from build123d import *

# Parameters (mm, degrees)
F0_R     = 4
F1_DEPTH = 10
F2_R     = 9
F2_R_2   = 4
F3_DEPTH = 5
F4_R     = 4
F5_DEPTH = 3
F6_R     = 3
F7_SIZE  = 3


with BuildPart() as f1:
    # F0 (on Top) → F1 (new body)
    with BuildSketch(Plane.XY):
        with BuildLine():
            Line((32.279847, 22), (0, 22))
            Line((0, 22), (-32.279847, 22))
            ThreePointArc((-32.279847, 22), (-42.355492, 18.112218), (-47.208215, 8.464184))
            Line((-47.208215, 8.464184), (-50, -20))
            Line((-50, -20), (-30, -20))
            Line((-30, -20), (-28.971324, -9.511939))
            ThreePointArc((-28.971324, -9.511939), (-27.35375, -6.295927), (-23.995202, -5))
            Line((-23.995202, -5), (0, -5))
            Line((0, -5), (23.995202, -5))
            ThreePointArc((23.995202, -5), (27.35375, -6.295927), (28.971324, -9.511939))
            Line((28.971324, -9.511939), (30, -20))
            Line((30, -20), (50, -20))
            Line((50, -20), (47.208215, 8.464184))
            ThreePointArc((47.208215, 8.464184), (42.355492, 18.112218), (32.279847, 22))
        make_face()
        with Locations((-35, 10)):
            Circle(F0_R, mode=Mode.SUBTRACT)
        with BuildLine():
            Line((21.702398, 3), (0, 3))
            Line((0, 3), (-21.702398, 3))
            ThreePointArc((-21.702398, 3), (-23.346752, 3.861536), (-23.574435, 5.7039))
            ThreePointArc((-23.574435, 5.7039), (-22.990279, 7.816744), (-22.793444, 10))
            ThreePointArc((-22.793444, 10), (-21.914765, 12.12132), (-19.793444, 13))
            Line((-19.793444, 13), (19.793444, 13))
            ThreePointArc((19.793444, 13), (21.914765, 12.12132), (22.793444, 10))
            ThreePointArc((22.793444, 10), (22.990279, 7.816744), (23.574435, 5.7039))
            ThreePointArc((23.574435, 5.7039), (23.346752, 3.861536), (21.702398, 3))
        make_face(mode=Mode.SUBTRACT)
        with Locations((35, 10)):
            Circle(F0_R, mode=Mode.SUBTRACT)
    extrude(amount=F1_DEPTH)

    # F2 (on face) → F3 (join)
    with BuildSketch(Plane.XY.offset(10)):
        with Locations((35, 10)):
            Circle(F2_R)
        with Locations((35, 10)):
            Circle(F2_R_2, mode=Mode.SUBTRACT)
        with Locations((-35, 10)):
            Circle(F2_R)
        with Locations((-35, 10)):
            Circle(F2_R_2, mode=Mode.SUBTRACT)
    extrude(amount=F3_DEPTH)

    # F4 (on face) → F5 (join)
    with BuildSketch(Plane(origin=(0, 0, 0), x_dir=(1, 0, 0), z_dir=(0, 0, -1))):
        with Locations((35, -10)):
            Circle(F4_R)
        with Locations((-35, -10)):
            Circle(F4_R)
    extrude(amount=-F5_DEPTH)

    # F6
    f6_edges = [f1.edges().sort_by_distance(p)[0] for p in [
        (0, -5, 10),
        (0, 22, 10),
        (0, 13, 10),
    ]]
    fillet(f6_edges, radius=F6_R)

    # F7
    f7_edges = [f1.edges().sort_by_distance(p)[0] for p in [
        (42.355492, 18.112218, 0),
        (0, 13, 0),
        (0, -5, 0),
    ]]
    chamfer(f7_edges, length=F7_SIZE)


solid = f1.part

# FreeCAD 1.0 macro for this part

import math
import FreeCAD as App
import Part
import Sketcher
from FreeCAD import Vector


def edges_at(feature, points):
    """Names of the edges that pass closest to the given points."""
    edges = feature.Shape.Edges
    near = lambda p: min(range(len(edges)), key=lambda i: edges[i].distToShape(Part.Vertex(*p))[0])
    return sorted({f"Edge{near(p) + 1}" for p in points})

doc = App.newDocument("Part")
body = doc.addObject("PartDesign::Body", "Body")

# Sketch on XY plane
sketch1 = body.newObject("Sketcher::SketchObject", "Sketch")
sketch1.AttachmentSupport = (doc.getObject("XY_Plane"), [""])
sketch1.MapMode = "FlatFace"
sketch1.addGeometry(Part.LineSegment(Vector(32.279847, 22, 0), Vector(-32.279847, 22, 0)), False)
sketch1.addGeometry(Part.ArcOfCircle(Part.Circle(Vector(-32.279848, 7.000001, 0), Vector(0, 0, 1), 14.999999), math.radians(89.999997), math.radians(174.398312)), False)
sketch1.addGeometry(Part.LineSegment(Vector(-47.208215, 8.464184, 0), Vector(-50, -20, 0)), False)
sketch1.addGeometry(Part.LineSegment(Vector(-50, -20, 0), Vector(-30, -20, 0)), False)
sketch1.addGeometry(Part.LineSegment(Vector(-30, -20, 0), Vector(-28.971324, -9.511939, 0)), False)
sketch1.addGeometry(Part.ArcOfCircle(Part.Circle(Vector(-23.995203, -9.999998, 0), Vector(0, 0, 1), 4.999998), math.radians(89.99999), math.radians(174.39833)), False)
sketch1.addGeometry(Part.LineSegment(Vector(-23.995202, -5, 0), Vector(23.995202, -5, 0)), False)
sketch1.addGeometry(Part.ArcOfCircle(Part.Circle(Vector(23.995203, -9.999998, 0), Vector(0, 0, 1), 4.999998), math.radians(5.60167), math.radians(90.00001)), False)
sketch1.addGeometry(Part.LineSegment(Vector(28.971324, -9.511939, 0), Vector(30, -20, 0)), False)
sketch1.addGeometry(Part.LineSegment(Vector(30, -20, 0), Vector(50, -20, 0)), False)
sketch1.addGeometry(Part.LineSegment(Vector(50, -20, 0), Vector(47.208215, 8.464184, 0)), False)
sketch1.addGeometry(Part.ArcOfCircle(Part.Circle(Vector(32.279848, 7.000001, 0), Vector(0, 0, 1), 14.999999), math.radians(5.601688), math.radians(90.000003)), False)
sketch1.addGeometry(Part.ArcOfCircle(Part.Circle(Vector(21.702399, 4.999999, 0), Vector(0, 0, 1), 1.999999), math.radians(-90.000015), math.radians(20.606664)), False)
sketch1.addGeometry(Part.LineSegment(Vector(21.702398, 3, 0), Vector(-21.702398, 3, 0)), False)
sketch1.addGeometry(Part.ArcOfCircle(Part.Circle(Vector(-21.702399, 4.999999, 0), Vector(0, 0, 1), 1.999999), math.radians(159.393336), math.radians(270.000015)), False)
sketch1.addGeometry(Part.ArcOfCircle(Part.Circle(Vector(-35.000012, 10.000002, 0), Vector(0, 0, 1), 12.206568), math.radians(-20.606634), math.radians(-0.00001)), False)
sketch1.addGeometry(Part.ArcOfCircle(Part.Circle(Vector(-19.793445, 10.000001, 0), Vector(0, 0, 1), 2.999999), math.radians(89.99999), math.radians(180.00001)), False)
sketch1.addGeometry(Part.LineSegment(Vector(-19.793444, 13, 0), Vector(19.793444, 13, 0)), False)
sketch1.addGeometry(Part.ArcOfCircle(Part.Circle(Vector(19.793445, 10.000001, 0), Vector(0, 0, 1), 2.999999), math.radians(-0.00001), math.radians(90.00001)), False)
sketch1.addGeometry(Part.ArcOfCircle(Part.Circle(Vector(35.000012, 10.000002, 0), Vector(0, 0, 1), 12.206568), math.radians(-179.99999), math.radians(-159.393366)), False)
sketch1.addGeometry(Part.Circle(Vector(-35, 10, 0), Vector(0, 0, 1), 4), False)
sketch1.addGeometry(Part.Circle(Vector(35, 10, 0), Vector(0, 0, 1), 4), False)
sketch1.addConstraint(Sketcher.Constraint("Tangent", 0, 2, 1, 1))
sketch1.addConstraint(Sketcher.Constraint("Tangent", 1, 2, 2, 1))
sketch1.addConstraint(Sketcher.Constraint("Coincident", 2, 2, 3, 1))
sketch1.addConstraint(Sketcher.Constraint("Coincident", 3, 2, 4, 1))
sketch1.addConstraint(Sketcher.Constraint("Tangent", 4, 2, 5, 2))
sketch1.addConstraint(Sketcher.Constraint("Tangent", 5, 1, 6, 1))
sketch1.addConstraint(Sketcher.Constraint("Tangent", 6, 2, 7, 2))
sketch1.addConstraint(Sketcher.Constraint("Tangent", 7, 1, 8, 1))
sketch1.addConstraint(Sketcher.Constraint("Coincident", 8, 2, 9, 1))
sketch1.addConstraint(Sketcher.Constraint("Coincident", 9, 2, 10, 1))
sketch1.addConstraint(Sketcher.Constraint("Tangent", 10, 2, 11, 1))
sketch1.addConstraint(Sketcher.Constraint("Tangent", 11, 2, 0, 1))
sketch1.addConstraint(Sketcher.Constraint("Tangent", 12, 1, 13, 1))
sketch1.addConstraint(Sketcher.Constraint("Tangent", 13, 2, 14, 2))
sketch1.addConstraint(Sketcher.Constraint("Tangent", 14, 1, 15, 1))
sketch1.addConstraint(Sketcher.Constraint("Tangent", 15, 2, 16, 2))
sketch1.addConstraint(Sketcher.Constraint("Tangent", 16, 1, 17, 1))
sketch1.addConstraint(Sketcher.Constraint("Tangent", 17, 2, 18, 2))
sketch1.addConstraint(Sketcher.Constraint("Tangent", 18, 1, 19, 1))
sketch1.addConstraint(Sketcher.Constraint("Tangent", 19, 2, 12, 2))
sketch1.addConstraint(Sketcher.Constraint("Horizontal", 0))
sketch1.addConstraint(Sketcher.Constraint("Horizontal", 3))
sketch1.addConstraint(Sketcher.Constraint("Horizontal", 6))
sketch1.addConstraint(Sketcher.Constraint("Horizontal", 9))
sketch1.addConstraint(Sketcher.Constraint("Horizontal", 13))
sketch1.addConstraint(Sketcher.Constraint("Horizontal", 17))
sketch1.addConstraint(Sketcher.Constraint("Equal", 5, 7))
sketch1.addConstraint(Sketcher.Constraint("Equal", 1, 11))
sketch1.addConstraint(Sketcher.Constraint("Equal", 12, 14))
sketch1.addConstraint(Sketcher.Constraint("Equal", 16, 18))
sketch1.addConstraint(Sketcher.Constraint("Equal", 15, 19))
sketch1.addConstraint(Sketcher.Constraint("Equal", 20, 21))
sketch1.addConstraint(Sketcher.Constraint("Symmetric", 15, 3, 19, 3, -2))
sketch1.addConstraint(Sketcher.Constraint("Symmetric", 20, 3, 21, 3, -2))
sketch1.addConstraint(Sketcher.Constraint("Symmetric", 4, 2, 7, 1, -2))
sketch1.addConstraint(Sketcher.Constraint("Symmetric", 2, 2, 9, 2, -2))
sketch1.addConstraint(Sketcher.Constraint("Parallel", 2, 4))
sketch1.addConstraint(Sketcher.Constraint("Parallel", 8, 10))
sketch1.addConstraint(Sketcher.Constraint("Horizontal", 15, 3, 16, 3))
sketch1.addConstraint(Sketcher.Constraint("Horizontal", 18, 3, 20, 3))
sketch1.addConstraint(Sketcher.Constraint("Diameter", 20, 8.0))
sketch1.addConstraint(Sketcher.Constraint("Radius", 1, 14.999999))
sketch1.addConstraint(Sketcher.Constraint("Radius", 5, 4.999998))
sketch1.addConstraint(Sketcher.Constraint("Radius", 12, 1.999999))
sketch1.addConstraint(Sketcher.Constraint("Radius", 16, 2.999999))
sketch1.addConstraint(Sketcher.Constraint("DistanceX", 3, 1, 3, 2, 20.0))
sketch1.addConstraint(Sketcher.Constraint("DistanceY", -1, 1, 1, 3, 7.000001))
sketch1.addConstraint(Sketcher.Constraint("DistanceY", 5, 3, -1, 1, 9.999998))
sketch1.addConstraint(Sketcher.Constraint("DistanceY", -1, 1, 12, 3, 4.999999))
sketch1.addConstraint(Sketcher.Constraint("DistanceY", -1, 1, 16, 3, 10.000001))
sketch1.addConstraint(Sketcher.Constraint("DistanceX", 20, 3, -1, 1, 35.0))
sketch1.addConstraint(Sketcher.Constraint("DistanceX", 2, 2, -1, 1, 50.0))
sketch1.addConstraint(Sketcher.Constraint("DistanceY", 2, 2, -1, 1, 20.0))
sketch1.addConstraint(Sketcher.Constraint("Radius", 15, 12.206568))
sketch1.addConstraint(Sketcher.Constraint("DistanceX", 17, 1, 17, 2, 39.586888))
sketch1.addConstraint(Sketcher.Constraint("DistanceX", 5, 1, -1, 1, 23.995202))
pad1 = body.newObject("PartDesign::Pad", "Pad")
pad1.Profile = sketch1
pad1.Length = 10

# Sketch on XY plane
sketch2 = body.newObject("Sketcher::SketchObject", "Sketch001")
sketch2.AttachmentSupport = (doc.getObject("XY_Plane"), [""])
sketch2.MapMode = "FlatFace"
sketch2.AttachmentOffset = App.Placement(Vector(0, 0, 10), App.Rotation())
sketch2.addGeometry(Part.Circle(Vector(35, 10, 0), Vector(0, 0, 1), 9), False)
sketch2.addGeometry(Part.Circle(Vector(35, 10, 0), Vector(0, 0, 1), 4), False)
sketch2.addGeometry(Part.Circle(Vector(-35, 10, 0), Vector(0, 0, 1), 9), False)
sketch2.addGeometry(Part.Circle(Vector(-35, 10, 0), Vector(0, 0, 1), 4), False)
sketch2.addConstraint(Sketcher.Constraint("Coincident", 1, 3, 0, 3))
sketch2.addConstraint(Sketcher.Constraint("Coincident", 3, 3, 2, 3))
sketch2.addConstraint(Sketcher.Constraint("Equal", 0, 2))
sketch2.addConstraint(Sketcher.Constraint("Equal", 1, 3))
sketch2.addConstraint(Sketcher.Constraint("Symmetric", 0, 3, 2, 3, -2))
sketch2.addConstraint(Sketcher.Constraint("Diameter", 0, 18.0))
sketch2.addConstraint(Sketcher.Constraint("Diameter", 1, 8.0))
sketch2.addConstraint(Sketcher.Constraint("DistanceX", -1, 1, 0, 3, 35.0))
sketch2.addConstraint(Sketcher.Constraint("DistanceY", -1, 1, 0, 3, 10.0))
pad2 = body.newObject("PartDesign::Pad", "Pad001")
pad2.Profile = sketch2
pad2.Length = 5

# Sketch on XY plane
sketch3 = body.newObject("Sketcher::SketchObject", "Sketch002")
sketch3.AttachmentSupport = (doc.getObject("XY_Plane"), [""])
sketch3.MapMode = "FlatFace"
sketch3.addGeometry(Part.Circle(Vector(35, 10, 0), Vector(0, 0, 1), 4), False)
sketch3.addGeometry(Part.Circle(Vector(-35, 10, 0), Vector(0, 0, 1), 4), False)
sketch3.addConstraint(Sketcher.Constraint("Equal", 0, 1))
sketch3.addConstraint(Sketcher.Constraint("Symmetric", 0, 3, 1, 3, -2))
sketch3.addConstraint(Sketcher.Constraint("Diameter", 0, 8.0))
sketch3.addConstraint(Sketcher.Constraint("DistanceX", -1, 1, 0, 3, 35.0))
sketch3.addConstraint(Sketcher.Constraint("DistanceY", -1, 1, 0, 3, 10.0))
pad3 = body.newObject("PartDesign::Pad", "Pad002")
pad3.Profile = sketch3
pad3.Length = 3
doc.recompute()

fillet = body.newObject("PartDesign::Fillet", "Fillet")
fillet.Base = (pad3, edges_at(pad3, [(0, -5, 10), (0, 22, 10), (0, 13, 10)]))
fillet.Radius = 3
doc.recompute()

chamfer = body.newObject("PartDesign::Chamfer", "Chamfer")
chamfer.Base = (fillet, edges_at(fillet, [(42.355, 18.112, 0), (0, 13, 0), (0, -5, 0)]))
chamfer.Size = 3

doc.recompute()
